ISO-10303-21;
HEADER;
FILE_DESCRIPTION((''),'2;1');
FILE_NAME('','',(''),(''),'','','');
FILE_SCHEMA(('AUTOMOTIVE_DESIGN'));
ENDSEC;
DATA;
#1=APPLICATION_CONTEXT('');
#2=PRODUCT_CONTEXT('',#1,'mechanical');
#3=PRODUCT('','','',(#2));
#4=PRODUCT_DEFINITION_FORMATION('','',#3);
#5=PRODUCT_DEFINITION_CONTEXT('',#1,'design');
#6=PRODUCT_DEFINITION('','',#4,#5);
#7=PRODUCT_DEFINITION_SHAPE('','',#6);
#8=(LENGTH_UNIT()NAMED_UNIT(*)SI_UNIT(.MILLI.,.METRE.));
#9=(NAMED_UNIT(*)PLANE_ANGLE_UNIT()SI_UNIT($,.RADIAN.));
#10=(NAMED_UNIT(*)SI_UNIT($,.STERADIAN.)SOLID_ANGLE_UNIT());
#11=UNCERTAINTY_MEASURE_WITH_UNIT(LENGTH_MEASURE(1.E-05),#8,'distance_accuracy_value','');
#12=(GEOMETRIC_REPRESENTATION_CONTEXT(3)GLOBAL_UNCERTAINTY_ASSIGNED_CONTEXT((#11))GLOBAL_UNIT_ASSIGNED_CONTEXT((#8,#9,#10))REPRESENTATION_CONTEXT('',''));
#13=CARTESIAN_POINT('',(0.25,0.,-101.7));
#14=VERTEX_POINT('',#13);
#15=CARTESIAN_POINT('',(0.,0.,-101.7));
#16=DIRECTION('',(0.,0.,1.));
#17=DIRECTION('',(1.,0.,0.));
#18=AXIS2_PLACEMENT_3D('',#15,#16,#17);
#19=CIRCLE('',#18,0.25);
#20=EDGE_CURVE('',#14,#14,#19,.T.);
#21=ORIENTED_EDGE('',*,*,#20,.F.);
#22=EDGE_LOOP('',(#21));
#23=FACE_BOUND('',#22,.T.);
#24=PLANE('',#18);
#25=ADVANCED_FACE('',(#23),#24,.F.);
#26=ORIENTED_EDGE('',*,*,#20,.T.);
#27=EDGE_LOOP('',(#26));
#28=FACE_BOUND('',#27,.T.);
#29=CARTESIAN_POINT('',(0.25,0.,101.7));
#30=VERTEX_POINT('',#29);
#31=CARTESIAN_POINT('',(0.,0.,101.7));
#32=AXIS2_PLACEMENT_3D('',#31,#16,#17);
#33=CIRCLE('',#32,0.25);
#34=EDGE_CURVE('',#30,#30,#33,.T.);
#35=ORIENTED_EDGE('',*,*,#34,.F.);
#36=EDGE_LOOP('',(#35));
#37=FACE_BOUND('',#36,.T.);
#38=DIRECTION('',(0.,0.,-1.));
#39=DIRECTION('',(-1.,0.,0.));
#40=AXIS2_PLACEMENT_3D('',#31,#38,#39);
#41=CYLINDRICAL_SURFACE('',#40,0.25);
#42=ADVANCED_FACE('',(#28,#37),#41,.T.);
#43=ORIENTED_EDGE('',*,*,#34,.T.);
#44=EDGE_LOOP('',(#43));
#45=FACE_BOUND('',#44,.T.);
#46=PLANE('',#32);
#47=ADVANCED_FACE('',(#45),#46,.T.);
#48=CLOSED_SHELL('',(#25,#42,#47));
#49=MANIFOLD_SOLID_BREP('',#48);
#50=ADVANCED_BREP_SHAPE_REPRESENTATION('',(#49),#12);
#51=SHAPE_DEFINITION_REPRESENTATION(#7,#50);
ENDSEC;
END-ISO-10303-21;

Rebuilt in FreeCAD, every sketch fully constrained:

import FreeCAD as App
import Part
import Sketcher
from FreeCAD import Vector

doc = App.newDocument("Part")
params = doc.addObject("Spreadsheet::Sheet", "Params")
for row, (alias, value) in enumerate([
    ("sketch1_diameter", "0.5 mm"),
    ("pad1_length", "203.4 mm"),
], start=1):
    params.set(f"A{row}", alias)
    params.set(f"B{row}", "=" + value)
    params.setAlias(f"B{row}", alias)

body = doc.addObject("PartDesign::Body", "Body")

# Sketch on XY plane
sketch1 = body.newObject("Sketcher::SketchObject", "Sketch")
sketch1.AttachmentSupport = (doc.getObject("XY_Plane"), [""])
sketch1.MapMode = "FlatFace"
sketch1.addGeometry(Part.Circle(Vector(0, 0, 0), Vector(0, 0, 1), 0.25), False)
sketch1.addConstraint([
    Sketcher.Constraint("Coincident", 0, 3, -1, 1),
    Sketcher.Constraint("Diameter", 0, 0.5),
])
sketch1.setExpression("Constraints[1]", "Params.sketch1_diameter")
pad1 = body.newObject("PartDesign::Pad", "Pad")
pad1.Profile = sketch1
pad1.setExpression("Length", "Params.pad1_length")
pad1.Midplane = True

doc.recompute()
